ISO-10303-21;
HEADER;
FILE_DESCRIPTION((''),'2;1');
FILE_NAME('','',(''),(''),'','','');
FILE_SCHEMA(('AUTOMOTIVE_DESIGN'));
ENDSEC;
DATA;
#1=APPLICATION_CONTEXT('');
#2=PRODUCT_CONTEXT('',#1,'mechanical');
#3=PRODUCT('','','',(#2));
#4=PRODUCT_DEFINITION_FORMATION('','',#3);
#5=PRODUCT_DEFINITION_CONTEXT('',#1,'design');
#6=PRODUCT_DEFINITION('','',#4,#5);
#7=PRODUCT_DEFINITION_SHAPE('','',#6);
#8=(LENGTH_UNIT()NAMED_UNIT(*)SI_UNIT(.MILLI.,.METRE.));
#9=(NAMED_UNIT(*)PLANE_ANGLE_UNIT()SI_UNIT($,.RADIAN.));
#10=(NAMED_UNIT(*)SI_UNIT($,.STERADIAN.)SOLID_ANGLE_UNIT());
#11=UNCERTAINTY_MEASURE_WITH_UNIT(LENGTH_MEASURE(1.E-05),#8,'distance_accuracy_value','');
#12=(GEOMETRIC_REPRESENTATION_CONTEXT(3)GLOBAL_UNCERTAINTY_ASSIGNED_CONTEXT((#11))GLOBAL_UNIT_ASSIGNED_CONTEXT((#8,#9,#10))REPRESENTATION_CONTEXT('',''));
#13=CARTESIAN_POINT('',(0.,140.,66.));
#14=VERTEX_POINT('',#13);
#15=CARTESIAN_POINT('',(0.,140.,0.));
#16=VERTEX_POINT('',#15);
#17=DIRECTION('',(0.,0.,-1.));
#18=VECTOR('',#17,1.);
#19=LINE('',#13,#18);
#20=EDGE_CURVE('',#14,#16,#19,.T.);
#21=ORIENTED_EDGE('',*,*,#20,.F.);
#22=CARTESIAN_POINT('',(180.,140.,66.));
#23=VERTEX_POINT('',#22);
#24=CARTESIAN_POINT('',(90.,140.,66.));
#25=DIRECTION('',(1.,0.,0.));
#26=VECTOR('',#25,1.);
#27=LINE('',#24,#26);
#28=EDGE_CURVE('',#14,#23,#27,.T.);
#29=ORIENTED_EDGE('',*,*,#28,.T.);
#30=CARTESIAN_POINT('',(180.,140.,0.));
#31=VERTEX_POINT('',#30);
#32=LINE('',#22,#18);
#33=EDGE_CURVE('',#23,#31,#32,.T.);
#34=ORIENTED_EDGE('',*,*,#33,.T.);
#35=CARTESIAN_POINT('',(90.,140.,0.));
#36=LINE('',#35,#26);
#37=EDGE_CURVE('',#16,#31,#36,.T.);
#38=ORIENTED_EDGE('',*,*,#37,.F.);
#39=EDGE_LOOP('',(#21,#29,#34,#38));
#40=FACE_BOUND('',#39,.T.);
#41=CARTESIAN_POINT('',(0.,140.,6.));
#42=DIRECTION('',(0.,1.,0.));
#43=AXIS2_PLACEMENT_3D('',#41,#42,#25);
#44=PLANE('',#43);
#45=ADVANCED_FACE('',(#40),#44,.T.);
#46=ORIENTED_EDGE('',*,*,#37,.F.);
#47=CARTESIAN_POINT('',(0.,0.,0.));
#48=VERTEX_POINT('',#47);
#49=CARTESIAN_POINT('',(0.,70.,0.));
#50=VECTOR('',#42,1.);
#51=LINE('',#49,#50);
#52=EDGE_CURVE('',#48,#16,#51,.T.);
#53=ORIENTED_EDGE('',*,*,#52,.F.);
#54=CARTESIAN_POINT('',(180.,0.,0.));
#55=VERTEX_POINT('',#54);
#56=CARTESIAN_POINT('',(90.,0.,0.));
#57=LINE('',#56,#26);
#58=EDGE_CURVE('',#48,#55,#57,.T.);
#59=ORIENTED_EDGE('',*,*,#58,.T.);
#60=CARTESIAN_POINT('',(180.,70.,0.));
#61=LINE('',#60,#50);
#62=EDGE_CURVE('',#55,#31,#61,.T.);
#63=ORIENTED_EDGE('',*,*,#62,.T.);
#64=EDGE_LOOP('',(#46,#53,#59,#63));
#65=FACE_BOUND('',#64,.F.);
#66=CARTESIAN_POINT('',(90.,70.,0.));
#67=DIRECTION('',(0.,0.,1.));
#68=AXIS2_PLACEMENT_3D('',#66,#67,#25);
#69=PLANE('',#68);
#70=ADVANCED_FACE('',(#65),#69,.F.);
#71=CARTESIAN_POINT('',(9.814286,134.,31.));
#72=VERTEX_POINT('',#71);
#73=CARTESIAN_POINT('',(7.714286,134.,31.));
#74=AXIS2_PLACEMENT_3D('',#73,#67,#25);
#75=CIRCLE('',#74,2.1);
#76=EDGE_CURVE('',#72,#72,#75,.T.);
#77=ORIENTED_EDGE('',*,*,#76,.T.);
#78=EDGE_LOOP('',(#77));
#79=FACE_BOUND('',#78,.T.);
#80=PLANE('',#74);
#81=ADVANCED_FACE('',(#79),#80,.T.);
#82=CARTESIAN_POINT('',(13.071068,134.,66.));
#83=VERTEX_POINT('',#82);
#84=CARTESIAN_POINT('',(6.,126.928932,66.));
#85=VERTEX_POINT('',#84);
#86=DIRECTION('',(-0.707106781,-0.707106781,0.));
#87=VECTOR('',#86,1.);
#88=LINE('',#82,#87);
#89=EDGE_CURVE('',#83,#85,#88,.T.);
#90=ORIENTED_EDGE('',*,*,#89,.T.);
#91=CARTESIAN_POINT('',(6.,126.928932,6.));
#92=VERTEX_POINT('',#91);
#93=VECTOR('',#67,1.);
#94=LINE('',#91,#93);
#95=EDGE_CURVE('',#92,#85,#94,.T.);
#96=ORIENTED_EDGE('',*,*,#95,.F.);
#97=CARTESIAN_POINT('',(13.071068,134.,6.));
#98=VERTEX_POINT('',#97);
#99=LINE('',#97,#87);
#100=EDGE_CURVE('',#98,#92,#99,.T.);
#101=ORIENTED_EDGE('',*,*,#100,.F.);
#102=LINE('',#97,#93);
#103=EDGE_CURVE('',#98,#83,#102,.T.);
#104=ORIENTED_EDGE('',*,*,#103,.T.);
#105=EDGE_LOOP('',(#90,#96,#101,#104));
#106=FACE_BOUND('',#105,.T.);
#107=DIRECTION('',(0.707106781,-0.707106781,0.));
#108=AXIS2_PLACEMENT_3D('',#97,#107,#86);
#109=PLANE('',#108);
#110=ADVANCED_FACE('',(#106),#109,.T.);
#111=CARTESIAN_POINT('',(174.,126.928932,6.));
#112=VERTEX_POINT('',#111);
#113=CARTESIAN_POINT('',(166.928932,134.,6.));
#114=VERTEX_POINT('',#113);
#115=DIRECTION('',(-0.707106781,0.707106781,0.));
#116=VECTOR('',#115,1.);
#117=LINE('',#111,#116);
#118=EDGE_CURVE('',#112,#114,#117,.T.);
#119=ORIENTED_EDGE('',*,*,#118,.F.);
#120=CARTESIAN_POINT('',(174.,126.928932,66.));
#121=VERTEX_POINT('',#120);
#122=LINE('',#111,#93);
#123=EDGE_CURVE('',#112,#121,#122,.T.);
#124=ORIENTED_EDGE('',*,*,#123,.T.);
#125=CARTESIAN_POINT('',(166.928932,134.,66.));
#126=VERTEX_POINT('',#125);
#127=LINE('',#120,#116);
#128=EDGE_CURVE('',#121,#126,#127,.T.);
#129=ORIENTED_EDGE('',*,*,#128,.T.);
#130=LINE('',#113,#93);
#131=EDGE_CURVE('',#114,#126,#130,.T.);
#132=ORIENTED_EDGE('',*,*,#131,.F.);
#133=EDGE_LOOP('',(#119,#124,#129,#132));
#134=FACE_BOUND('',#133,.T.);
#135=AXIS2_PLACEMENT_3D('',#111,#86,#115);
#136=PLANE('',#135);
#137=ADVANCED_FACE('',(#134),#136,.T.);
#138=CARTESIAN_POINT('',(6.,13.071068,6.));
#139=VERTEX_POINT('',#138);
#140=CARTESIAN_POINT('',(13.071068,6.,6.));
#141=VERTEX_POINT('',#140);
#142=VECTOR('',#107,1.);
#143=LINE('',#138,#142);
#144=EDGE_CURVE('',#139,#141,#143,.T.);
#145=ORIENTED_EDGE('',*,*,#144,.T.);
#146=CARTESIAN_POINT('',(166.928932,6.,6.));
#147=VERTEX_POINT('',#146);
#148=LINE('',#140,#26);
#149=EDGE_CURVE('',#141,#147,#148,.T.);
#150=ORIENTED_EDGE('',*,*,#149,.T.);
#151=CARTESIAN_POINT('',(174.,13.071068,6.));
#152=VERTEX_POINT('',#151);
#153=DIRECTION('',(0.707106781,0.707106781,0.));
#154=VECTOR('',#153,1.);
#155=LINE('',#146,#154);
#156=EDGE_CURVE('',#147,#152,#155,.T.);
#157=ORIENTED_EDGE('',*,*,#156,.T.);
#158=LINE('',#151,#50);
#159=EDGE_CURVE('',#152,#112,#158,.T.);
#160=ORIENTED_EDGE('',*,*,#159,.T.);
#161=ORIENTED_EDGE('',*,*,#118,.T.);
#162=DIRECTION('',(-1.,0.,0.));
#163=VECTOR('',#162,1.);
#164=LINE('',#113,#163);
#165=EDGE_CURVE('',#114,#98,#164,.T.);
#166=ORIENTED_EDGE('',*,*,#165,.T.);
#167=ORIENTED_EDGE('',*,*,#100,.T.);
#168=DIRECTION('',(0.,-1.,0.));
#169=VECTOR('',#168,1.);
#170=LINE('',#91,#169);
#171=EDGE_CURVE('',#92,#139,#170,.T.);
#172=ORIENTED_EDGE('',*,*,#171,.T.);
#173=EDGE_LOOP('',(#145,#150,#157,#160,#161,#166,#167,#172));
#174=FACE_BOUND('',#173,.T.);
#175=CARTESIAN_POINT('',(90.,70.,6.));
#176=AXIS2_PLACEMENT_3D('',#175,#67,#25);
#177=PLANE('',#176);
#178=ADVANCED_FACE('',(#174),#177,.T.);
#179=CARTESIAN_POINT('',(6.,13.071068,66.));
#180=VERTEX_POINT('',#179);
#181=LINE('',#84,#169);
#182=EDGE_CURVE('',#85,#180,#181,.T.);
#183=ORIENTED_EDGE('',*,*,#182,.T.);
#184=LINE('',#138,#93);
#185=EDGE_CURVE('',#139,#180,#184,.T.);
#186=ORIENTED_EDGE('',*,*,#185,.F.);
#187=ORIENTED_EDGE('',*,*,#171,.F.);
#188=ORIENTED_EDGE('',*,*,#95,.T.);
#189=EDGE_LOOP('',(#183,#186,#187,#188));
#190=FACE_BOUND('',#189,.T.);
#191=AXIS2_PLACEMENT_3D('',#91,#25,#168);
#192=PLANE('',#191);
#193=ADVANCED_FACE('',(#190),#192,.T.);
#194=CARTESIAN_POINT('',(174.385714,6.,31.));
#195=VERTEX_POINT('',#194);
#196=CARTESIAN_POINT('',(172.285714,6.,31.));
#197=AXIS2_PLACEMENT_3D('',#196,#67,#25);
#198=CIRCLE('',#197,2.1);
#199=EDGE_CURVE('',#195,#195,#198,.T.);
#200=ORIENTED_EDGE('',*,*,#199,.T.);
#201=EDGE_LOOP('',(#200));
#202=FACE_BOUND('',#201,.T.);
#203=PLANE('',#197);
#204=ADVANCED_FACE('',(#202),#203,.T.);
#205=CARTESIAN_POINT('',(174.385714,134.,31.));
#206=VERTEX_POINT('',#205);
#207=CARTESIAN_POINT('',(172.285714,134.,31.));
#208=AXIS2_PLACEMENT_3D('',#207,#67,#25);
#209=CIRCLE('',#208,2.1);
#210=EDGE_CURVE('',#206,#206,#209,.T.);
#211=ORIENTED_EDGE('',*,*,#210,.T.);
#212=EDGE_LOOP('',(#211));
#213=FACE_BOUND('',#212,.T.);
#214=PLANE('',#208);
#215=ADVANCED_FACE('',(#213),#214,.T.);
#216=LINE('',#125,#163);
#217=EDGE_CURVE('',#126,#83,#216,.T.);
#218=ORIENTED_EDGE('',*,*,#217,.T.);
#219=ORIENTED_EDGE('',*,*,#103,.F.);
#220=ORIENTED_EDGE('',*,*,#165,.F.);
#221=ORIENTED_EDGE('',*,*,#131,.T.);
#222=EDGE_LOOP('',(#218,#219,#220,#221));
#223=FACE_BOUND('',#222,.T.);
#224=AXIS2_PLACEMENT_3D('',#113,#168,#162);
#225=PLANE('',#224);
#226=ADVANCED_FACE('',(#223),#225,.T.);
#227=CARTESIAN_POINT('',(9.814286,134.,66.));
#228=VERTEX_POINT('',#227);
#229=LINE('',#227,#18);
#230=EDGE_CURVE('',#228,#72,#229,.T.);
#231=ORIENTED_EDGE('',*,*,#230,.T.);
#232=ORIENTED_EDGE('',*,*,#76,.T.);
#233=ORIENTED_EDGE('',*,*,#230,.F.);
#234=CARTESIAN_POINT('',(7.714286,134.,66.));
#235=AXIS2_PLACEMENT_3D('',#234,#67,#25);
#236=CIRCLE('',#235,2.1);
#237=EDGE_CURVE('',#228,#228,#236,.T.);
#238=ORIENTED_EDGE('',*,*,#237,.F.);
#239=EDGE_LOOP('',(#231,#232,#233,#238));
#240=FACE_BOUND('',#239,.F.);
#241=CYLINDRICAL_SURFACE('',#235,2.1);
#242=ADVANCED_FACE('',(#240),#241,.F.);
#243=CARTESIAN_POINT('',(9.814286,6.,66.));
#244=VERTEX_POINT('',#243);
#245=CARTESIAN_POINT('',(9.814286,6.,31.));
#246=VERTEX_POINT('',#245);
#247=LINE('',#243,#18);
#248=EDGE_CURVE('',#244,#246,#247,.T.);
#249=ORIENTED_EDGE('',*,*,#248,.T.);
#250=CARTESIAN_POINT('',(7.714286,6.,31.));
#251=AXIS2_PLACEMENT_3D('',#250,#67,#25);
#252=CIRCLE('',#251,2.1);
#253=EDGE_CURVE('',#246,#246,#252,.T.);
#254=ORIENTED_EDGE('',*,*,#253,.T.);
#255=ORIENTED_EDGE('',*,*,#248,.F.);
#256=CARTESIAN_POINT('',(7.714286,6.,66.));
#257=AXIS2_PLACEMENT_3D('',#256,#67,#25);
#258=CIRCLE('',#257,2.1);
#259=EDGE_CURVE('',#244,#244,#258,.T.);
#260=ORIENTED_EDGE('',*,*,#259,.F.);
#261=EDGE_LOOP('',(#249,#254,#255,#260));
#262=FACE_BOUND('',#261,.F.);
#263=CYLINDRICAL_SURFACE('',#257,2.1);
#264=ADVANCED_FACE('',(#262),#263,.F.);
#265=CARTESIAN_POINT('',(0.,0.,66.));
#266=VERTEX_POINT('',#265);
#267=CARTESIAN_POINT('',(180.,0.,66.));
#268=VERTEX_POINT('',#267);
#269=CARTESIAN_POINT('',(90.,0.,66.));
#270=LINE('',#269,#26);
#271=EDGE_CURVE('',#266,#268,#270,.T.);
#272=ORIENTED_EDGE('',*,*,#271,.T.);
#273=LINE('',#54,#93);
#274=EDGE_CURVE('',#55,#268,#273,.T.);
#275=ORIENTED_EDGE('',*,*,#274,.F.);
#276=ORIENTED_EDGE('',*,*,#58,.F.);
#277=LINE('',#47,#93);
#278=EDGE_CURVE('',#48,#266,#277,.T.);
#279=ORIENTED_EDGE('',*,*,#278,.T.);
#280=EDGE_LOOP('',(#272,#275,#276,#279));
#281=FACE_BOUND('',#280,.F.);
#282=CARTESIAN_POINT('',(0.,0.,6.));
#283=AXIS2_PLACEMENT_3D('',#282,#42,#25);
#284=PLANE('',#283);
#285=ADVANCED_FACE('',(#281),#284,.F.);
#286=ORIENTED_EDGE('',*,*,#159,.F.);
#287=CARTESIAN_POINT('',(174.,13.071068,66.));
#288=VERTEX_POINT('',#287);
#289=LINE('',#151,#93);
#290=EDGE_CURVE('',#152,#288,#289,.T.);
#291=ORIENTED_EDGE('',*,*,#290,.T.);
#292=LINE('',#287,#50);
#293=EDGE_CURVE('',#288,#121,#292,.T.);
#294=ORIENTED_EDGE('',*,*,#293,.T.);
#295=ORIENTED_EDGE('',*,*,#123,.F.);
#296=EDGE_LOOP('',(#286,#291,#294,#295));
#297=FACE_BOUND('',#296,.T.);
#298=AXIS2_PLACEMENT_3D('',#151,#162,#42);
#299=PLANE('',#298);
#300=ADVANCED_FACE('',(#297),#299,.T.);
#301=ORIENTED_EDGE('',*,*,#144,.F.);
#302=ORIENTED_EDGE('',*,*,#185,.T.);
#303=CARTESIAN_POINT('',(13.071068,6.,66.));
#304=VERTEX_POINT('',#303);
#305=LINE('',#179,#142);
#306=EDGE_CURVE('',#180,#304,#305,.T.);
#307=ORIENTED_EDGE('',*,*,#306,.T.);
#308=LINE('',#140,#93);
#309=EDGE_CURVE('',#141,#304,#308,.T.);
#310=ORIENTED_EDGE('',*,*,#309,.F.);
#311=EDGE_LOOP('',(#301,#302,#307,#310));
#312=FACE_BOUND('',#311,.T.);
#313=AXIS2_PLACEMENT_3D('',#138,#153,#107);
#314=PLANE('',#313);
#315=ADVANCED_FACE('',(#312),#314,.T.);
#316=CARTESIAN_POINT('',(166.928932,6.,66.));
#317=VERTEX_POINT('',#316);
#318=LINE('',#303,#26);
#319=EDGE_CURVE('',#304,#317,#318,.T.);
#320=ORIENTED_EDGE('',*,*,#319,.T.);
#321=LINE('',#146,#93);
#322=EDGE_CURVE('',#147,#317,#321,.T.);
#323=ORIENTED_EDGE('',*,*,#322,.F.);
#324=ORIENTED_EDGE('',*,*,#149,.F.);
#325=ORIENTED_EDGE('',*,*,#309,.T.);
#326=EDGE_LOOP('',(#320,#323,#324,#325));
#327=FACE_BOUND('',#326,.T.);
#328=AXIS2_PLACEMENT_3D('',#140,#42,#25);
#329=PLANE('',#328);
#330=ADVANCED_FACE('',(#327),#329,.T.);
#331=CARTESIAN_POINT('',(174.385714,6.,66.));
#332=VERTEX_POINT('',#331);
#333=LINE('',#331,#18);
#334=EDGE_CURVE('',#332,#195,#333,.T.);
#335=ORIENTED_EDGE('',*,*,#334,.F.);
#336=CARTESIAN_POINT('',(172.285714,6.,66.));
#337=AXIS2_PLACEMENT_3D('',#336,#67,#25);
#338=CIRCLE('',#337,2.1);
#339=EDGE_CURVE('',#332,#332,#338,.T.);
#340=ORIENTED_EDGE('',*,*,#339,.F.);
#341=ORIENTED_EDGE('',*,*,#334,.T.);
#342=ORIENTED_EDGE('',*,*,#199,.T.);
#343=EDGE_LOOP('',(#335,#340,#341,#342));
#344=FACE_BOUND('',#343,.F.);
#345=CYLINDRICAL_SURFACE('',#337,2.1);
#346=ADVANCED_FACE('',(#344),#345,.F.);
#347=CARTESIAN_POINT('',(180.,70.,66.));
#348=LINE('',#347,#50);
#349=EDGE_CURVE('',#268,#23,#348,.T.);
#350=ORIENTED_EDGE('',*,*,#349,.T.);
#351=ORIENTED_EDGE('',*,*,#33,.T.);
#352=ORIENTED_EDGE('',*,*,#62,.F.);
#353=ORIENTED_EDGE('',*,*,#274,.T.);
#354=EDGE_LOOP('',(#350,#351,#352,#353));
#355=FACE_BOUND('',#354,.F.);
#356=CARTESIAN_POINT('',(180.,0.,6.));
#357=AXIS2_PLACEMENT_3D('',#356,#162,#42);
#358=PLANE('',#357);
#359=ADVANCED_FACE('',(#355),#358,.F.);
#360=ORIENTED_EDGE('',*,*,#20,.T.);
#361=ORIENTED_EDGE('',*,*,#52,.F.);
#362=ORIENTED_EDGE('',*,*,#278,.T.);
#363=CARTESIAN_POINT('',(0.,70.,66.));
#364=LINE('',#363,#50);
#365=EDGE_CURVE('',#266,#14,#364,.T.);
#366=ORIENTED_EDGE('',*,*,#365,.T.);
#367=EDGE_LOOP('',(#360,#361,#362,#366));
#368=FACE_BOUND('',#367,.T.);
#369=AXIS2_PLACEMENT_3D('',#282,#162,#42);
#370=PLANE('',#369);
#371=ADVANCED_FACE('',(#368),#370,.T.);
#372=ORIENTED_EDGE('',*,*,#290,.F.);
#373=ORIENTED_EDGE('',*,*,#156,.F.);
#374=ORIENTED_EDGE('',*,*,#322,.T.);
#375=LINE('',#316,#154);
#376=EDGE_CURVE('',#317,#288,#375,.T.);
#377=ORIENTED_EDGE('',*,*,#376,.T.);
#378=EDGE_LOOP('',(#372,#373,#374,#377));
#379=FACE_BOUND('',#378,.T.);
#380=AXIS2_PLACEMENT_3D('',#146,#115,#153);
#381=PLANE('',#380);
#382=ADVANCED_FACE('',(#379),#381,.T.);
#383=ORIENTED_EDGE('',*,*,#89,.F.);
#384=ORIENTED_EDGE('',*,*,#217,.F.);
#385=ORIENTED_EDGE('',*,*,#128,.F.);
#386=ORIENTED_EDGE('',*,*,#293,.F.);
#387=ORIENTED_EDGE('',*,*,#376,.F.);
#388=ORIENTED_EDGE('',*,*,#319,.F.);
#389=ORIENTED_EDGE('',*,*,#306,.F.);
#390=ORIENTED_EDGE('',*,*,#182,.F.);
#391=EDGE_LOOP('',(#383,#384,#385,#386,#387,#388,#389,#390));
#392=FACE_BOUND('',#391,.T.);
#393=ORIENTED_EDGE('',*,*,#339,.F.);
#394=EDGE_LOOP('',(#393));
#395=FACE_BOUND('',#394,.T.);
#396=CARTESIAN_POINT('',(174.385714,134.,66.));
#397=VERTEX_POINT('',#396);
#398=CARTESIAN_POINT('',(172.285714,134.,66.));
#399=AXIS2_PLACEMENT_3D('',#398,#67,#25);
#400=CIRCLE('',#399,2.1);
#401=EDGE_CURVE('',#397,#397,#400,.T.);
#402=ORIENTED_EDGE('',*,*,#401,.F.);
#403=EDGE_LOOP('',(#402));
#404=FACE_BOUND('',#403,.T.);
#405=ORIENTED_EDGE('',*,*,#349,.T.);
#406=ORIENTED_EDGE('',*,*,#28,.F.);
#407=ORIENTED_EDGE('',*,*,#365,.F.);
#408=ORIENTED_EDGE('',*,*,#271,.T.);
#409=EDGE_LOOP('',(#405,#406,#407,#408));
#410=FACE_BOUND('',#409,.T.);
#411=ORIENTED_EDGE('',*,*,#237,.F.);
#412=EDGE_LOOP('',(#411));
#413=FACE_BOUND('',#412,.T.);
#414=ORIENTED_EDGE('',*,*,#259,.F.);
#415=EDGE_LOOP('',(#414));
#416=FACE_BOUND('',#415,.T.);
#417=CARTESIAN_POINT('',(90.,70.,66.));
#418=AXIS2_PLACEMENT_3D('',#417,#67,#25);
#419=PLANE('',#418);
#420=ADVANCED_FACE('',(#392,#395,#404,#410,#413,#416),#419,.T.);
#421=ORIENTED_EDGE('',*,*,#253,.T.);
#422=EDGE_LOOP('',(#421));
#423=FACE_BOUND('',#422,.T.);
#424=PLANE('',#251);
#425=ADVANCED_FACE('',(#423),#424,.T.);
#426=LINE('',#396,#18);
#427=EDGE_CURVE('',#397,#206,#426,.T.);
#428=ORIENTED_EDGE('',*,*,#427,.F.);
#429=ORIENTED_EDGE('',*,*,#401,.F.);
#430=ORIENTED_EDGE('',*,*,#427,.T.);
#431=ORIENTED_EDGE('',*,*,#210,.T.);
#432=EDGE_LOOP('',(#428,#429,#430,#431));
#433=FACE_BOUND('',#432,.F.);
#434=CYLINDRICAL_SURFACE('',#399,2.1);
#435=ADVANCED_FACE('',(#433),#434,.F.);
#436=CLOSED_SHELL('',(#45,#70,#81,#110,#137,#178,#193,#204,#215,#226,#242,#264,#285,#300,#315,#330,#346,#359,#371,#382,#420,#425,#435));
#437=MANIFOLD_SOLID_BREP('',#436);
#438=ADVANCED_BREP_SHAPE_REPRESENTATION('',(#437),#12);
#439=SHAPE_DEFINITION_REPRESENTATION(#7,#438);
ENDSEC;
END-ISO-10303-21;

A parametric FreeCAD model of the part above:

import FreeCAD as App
import Part
import Sketcher
from FreeCAD import Vector
Q = App.Units.Quantity

doc = App.newDocument("Part")
body = doc.addObject("PartDesign::Body", "Body")

sketch1 = doc.addObject("Sketcher::SketchObject", "Sketch")
body.addObject(sketch1)
sketch1.AttachmentSupport = (doc.XY_Plane, [""])
sketch1.MapMode = "FlatFace"
sketch1.addGeometry(Part.LineSegment(Vector(0, 140, 0), Vector(0, 0, 0)), False)
sketch1.addGeometry(Part.LineSegment(Vector(0, 0, 0), Vector(180, 0, 0)), False)
sketch1.addGeometry(Part.LineSegment(Vector(180, 0, 0), Vector(180, 140, 0)), False)
sketch1.addGeometry(Part.LineSegment(Vector(180, 140, 0), Vector(0, 140, 0)), False)
sketch1.addConstraint(Sketcher.Constraint("Coincident", 0, 2, 1, 1))
sketch1.addConstraint(Sketcher.Constraint("Coincident", 1, 2, 2, 1))
sketch1.addConstraint(Sketcher.Constraint("Coincident", 2, 2, 3, 1))
sketch1.addConstraint(Sketcher.Constraint("Coincident", 3, 2, 0, 1))
sketch1.addConstraint(Sketcher.Constraint("Vertical", 0))
sketch1.addConstraint(Sketcher.Constraint("Horizontal", 1))
sketch1.addConstraint(Sketcher.Constraint("Vertical", 2))
sketch1.addConstraint(Sketcher.Constraint("Horizontal", 3))
sketch1.addConstraint(Sketcher.Constraint("Coincident", 0, 2, -1, 1))
sketch1.addConstraint(Sketcher.Constraint("DistanceX", 1, 1, 1, 2, Q("180 mm")))
sketch1.addConstraint(Sketcher.Constraint("DistanceY", 0, 2, 0, 1, Q("140 mm")))
pad1 = doc.addObject("PartDesign::Pad", "Pad")
body.addObject(pad1)
pad1.Profile = sketch1
pad1.Length = 6

sketch2 = doc.addObject("Sketcher::SketchObject", "Sketch001")
body.addObject(sketch2)
sketch2.AttachmentSupport = (doc.XY_Plane, [""])
sketch2.MapMode = "FlatFace"
sketch2.AttachmentOffset = App.Placement(Vector(0, 0, 6), App.Rotation())
sketch2.addGeometry(Part.LineSegment(Vector(0, 140, 0), Vector(0, 0, 0)), False)
sketch2.addGeometry(Part.LineSegment(Vector(0, 0, 0), Vector(180, 0, 0)), False)
sketch2.addGeometry(Part.LineSegment(Vector(180, 0, 0), Vector(180, 140, 0)), False)
sketch2.addGeometry(Part.LineSegment(Vector(180, 140, 0), Vector(0, 140, 0)), False)
sketch2.addGeometry(Part.LineSegment(Vector(13, 134, 0), Vector(167, 134, 0)), False)
sketch2.addGeometry(Part.LineSegment(Vector(167, 134, 0), Vector(174, 127, 0)), False)
sketch2.addGeometry(Part.LineSegment(Vector(174, 127, 0), Vector(174, 13, 0)), False)
sketch2.addGeometry(Part.LineSegment(Vector(174, 13, 0), Vector(167, 6, 0)), False)
sketch2.addGeometry(Part.LineSegment(Vector(167, 6, 0), Vector(13, 6, 0)), False)
sketch2.addGeometry(Part.LineSegment(Vector(13, 6, 0), Vector(6, 13, 0)), False)
sketch2.addGeometry(Part.LineSegment(Vector(6, 13, 0), Vector(6, 127, 0)), False)
sketch2.addGeometry(Part.LineSegment(Vector(6, 127, 0), Vector(13, 134, 0)), False)
sketch2.addConstraint(Sketcher.Constraint("Coincident", 0, 2, 1, 1))
sketch2.addConstraint(Sketcher.Constraint("Coincident", 1, 2, 2, 1))
sketch2.addConstraint(Sketcher.Constraint("Coincident", 2, 2, 3, 1))
sketch2.addConstraint(Sketcher.Constraint("Coincident", 3, 2, 0, 1))
sketch2.addConstraint(Sketcher.Constraint("Coincident", 4, 2, 5, 1))
sketch2.addConstraint(Sketcher.Constraint("Coincident", 5, 2, 6, 1))
sketch2.addConstraint(Sketcher.Constraint("Coincident", 6, 2, 7, 1))
sketch2.addConstraint(Sketcher.Constraint("Coincident", 7, 2, 8, 1))
sketch2.addConstraint(Sketcher.Constraint("Coincident", 8, 2, 9, 1))
sketch2.addConstraint(Sketcher.Constraint("Coincident", 9, 2, 10, 1))
sketch2.addConstraint(Sketcher.Constraint("Coincident", 10, 2, 11, 1))
sketch2.addConstraint(Sketcher.Constraint("Coincident", 11, 2, 4, 1))
sketch2.addConstraint(Sketcher.Constraint("Vertical", 0))
sketch2.addConstraint(Sketcher.Constraint("Horizontal", 1))
sketch2.addConstraint(Sketcher.Constraint("Vertical", 2))
sketch2.addConstraint(Sketcher.Constraint("Horizontal", 3))
sketch2.addConstraint(Sketcher.Constraint("Horizontal", 4))
sketch2.addConstraint(Sketcher.Constraint("Vertical", 6))
sketch2.addConstraint(Sketcher.Constraint("Horizontal", 8))
sketch2.addConstraint(Sketcher.Constraint("Vertical", 10))
sketch2.addConstraint(Sketcher.Constraint("Coincident", 0, 2, -1, 1))
sketch2.addConstraint(Sketcher.Constraint("Perpendicular", 5, 7))
sketch2.addConstraint(Sketcher.Constraint("Perpendicular", 7, 9))
sketch2.addConstraint(Sketcher.Constraint("Perpendicular", 9, 11))
sketch2.addConstraint(Sketcher.Constraint("Horizontal", 6, 2, 9, 2))
sketch2.addConstraint(Sketcher.Constraint("Horizontal", 5, 2, 10, 2))
sketch2.addConstraint(Sketcher.Constraint("Vertical", 4, 2, 7, 2))
sketch2.addConstraint(Sketcher.Constraint("Vertical", 8, 2, 11, 2))
sketch2.addConstraint(Sketcher.Constraint("DistanceX", 1, 1, 1, 2, Q("180 mm")))
sketch2.addConstraint(Sketcher.Constraint("DistanceY", 0, 2, 0, 1, Q("140 mm")))
sketch2.addConstraint(Sketcher.Constraint("Distance", 5, Q("10 mm")))
sketch2.addConstraint(Sketcher.Constraint("DistanceY", -1, 1, 4, 2, Q("134 mm")))
sketch2.addConstraint(Sketcher.Constraint("DistanceX", -1, 1, 5, 2, Q("174 mm")))
sketch2.addConstraint(Sketcher.Constraint("DistanceY", -1, 1, 7, 2, Q("6 mm")))
sketch2.addConstraint(Sketcher.Constraint("DistanceX", -1, 1, 9, 2, Q("6 mm")))
pad2 = doc.addObject("PartDesign::Pad", "Pad001")
body.addObject(pad2)
pad2.Profile = sketch2
pad2.Length = 60

sketch3 = doc.addObject("Sketcher::SketchObject", "Sketch002")
body.addObject(sketch3)
sketch3.AttachmentSupport = (doc.XY_Plane, [""])
sketch3.MapMode = "FlatFace"
sketch3.AttachmentOffset = App.Placement(Vector(0, 0, 66), App.Rotation())
sketch3.addGeometry(Part.Circle(Vector(172.3, 6, 0), Vector(0, 0, 1), 2.1), False)
sketch3.addGeometry(Part.Circle(Vector(172.3, 134, 0), Vector(0, 0, 1), 2.1), False)
sketch3.addGeometry(Part.Circle(Vector(7.7, 134, 0), Vector(0, 0, 1), 2.1), False)
sketch3.addGeometry(Part.Circle(Vector(7.7, 6, 0), Vector(0, 0, 1), 2.1), False)
sketch3.addConstraint(Sketcher.Constraint("Equal", 0, 1))
sketch3.addConstraint(Sketcher.Constraint("Equal", 1, 2))
sketch3.addConstraint(Sketcher.Constraint("Equal", 2, 3))
sketch3.addConstraint(Sketcher.Constraint("Horizontal", 1, 3, 2, 3))
sketch3.addConstraint(Sketcher.Constraint("Horizontal", 0, 3, 3, 3))
sketch3.addConstraint(Sketcher.Constraint("Vertical", 0, 3, 1, 3))
sketch3.addConstraint(Sketcher.Constraint("Vertical", 2, 3, 3, 3))
sketch3.addConstraint(Sketcher.Constraint("Diameter", 0, Q("4.2 mm")))
sketch3.addConstraint(Sketcher.Constraint("DistanceY", -1, 1, 0, 3, Q("6 mm")))
sketch3.addConstraint(Sketcher.Constraint("DistanceY", -1, 1, 1, 3, Q("134 mm")))
sketch3.addConstraint(Sketcher.Constraint("DistanceX", 2, 3, 1, 3, Q("164.571428 mm")))
sketch3.addConstraint(Sketcher.Constraint("DistanceX", -1, 1, 0, 3, Q("172.285714 mm")))
pocket1 = doc.addObject("PartDesign::Pocket", "Pocket")
body.addObject(pocket1)
pocket1.Profile = sketch3
pocket1.Length = 35

doc.recompute()
